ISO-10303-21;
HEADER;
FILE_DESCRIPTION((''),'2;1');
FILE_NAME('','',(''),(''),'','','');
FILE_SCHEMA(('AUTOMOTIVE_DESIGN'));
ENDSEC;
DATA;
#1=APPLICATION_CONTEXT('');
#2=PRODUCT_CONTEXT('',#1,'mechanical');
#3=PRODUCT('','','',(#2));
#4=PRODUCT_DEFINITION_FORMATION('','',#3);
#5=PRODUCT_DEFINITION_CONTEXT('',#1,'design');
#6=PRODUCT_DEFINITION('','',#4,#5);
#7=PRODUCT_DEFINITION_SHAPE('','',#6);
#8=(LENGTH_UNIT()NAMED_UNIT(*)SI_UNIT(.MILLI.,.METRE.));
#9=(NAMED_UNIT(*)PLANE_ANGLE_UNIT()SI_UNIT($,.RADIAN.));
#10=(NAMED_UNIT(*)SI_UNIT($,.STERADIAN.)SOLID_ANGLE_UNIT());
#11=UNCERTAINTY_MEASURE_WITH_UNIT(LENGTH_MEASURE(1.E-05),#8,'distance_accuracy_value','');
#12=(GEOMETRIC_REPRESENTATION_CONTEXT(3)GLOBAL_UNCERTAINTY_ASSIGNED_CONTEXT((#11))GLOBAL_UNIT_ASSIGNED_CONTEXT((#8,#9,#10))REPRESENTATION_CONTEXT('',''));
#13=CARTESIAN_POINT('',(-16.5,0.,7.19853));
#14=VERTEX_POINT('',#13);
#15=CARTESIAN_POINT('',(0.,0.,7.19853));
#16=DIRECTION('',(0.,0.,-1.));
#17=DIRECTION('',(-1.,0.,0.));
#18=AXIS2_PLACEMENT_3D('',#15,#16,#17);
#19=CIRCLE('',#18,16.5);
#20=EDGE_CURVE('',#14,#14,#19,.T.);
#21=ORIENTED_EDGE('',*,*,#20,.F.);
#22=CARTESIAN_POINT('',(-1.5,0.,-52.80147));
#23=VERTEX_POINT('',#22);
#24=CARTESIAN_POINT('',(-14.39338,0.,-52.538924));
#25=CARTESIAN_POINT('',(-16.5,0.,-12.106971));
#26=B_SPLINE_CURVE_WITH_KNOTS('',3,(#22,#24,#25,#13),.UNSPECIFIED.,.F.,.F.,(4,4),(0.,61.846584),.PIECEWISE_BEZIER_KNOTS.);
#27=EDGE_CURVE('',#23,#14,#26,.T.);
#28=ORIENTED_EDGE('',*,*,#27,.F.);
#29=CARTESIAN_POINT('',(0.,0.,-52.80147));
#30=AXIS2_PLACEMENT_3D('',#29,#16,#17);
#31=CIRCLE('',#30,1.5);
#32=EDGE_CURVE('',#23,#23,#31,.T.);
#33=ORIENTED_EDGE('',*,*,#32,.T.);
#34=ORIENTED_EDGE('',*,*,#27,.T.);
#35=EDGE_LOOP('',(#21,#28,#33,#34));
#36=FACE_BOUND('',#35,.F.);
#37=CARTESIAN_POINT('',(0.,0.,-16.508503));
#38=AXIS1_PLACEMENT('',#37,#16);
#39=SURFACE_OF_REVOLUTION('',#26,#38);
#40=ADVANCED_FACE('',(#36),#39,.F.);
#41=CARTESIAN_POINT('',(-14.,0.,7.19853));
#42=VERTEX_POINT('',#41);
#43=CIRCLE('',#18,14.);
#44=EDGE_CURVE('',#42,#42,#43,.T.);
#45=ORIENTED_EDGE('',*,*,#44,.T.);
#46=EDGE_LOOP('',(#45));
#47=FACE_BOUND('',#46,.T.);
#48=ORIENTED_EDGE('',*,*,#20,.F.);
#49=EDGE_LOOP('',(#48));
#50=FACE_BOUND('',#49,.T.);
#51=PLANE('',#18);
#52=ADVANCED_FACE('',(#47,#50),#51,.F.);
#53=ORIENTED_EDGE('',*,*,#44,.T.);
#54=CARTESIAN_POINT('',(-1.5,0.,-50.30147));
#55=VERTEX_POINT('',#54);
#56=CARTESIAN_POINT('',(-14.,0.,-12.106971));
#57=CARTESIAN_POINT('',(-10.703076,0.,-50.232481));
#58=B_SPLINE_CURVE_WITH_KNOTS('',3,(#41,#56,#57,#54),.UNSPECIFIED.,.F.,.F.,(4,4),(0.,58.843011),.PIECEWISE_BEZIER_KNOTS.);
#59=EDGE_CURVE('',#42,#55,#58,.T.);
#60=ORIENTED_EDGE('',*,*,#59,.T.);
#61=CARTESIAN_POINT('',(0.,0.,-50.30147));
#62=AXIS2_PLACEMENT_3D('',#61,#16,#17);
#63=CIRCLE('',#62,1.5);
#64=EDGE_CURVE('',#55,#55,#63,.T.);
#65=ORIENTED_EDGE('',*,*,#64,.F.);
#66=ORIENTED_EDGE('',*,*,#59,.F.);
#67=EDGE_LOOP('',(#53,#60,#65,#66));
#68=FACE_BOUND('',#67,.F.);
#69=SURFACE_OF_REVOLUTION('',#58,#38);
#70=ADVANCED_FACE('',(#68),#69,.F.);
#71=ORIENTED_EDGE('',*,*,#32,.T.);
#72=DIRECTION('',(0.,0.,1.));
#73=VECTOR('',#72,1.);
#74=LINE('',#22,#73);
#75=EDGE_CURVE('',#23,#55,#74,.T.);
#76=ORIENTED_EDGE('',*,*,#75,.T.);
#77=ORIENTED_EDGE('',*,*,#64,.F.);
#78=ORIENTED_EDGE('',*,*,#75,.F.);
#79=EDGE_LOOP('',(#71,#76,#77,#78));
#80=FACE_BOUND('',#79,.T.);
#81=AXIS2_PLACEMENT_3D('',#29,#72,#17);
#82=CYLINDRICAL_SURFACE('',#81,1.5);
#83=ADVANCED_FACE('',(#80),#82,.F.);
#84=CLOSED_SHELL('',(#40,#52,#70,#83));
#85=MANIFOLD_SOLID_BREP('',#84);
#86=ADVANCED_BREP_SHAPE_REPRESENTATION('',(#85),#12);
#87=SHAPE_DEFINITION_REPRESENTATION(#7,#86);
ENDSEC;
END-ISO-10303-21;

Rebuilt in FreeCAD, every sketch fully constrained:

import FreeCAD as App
import Part
import Sketcher

V = App.Vector

doc = App.newDocument("Part")
body = doc.addObject("PartDesign::Body", "Body")

# Sketch on XZ plane
sketch1 = body.newObject("Sketcher::SketchObject", "Sketch")
sketch1.AttachmentSupport = (doc.getObject("XZ_Plane"), [""])
sketch1.MapMode = "FlatFace"
sketch1.addGeometry([
    Part.BSplineCurve([V(-1.5, -52.80147, 0), V(-14.39338, -52.538924, 0), V(-16.5, -12.106971, 0), V(-16.5, 7.19853, 0)], [4, 4], [0, 61.846584], False, 3, [1, 1, 1, 1], False),
    Part.LineSegment(V(-1.5, -52.80147, 0), V(-1.5, -50.30147, 0)),
    Part.BSplineCurve([V(-14, 7.19853, 0), V(-14, -12.106971, 0), V(-10.703076, -50.232481, 0), V(-1.5, -50.30147, 0)], [4, 4], [0, 58.843011], False, 3, [1, 1, 1, 1], False),
    Part.LineSegment(V(-14, 7.19853, 0), V(-16.5, 7.19853, 0)),
], False)
sketch1.addConstraint([
    Sketcher.Constraint("Block", 0),
    Sketcher.Constraint("Block", 2),
    Sketcher.Constraint("Coincident", 0, 1, 1, 1),
    Sketcher.Constraint("Coincident", 1, 2, 2, 2),
    Sketcher.Constraint("Coincident", 2, 1, 3, 1),
    Sketcher.Constraint("Coincident", 3, 2, 0, 2),
])
revolution = body.newObject("PartDesign::Revolution", "Revolution")
revolution.Profile = sketch1
revolution.ReferenceAxis = (sketch1, ["V_Axis"])
revolution.Angle = 360

doc.recompute()
